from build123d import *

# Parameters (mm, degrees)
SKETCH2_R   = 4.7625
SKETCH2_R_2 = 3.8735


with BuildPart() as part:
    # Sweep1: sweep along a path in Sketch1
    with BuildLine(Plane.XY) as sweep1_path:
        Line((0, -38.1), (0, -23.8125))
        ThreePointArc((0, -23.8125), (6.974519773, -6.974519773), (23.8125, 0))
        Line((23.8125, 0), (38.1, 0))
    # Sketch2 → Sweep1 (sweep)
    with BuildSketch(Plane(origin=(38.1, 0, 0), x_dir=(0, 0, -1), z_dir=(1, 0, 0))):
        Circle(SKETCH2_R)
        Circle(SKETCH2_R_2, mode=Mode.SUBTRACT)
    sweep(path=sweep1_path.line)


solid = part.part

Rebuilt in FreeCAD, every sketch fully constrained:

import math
import FreeCAD as App
import Part
import Sketcher
Q = App.Units.Quantity

doc = App.newDocument("Part")
body = doc.addObject("PartDesign::Body", "Body")

# Sketch on YZ plane
sketch1 = body.newObject("Sketcher::SketchObject", "Sketch")
sketch1.AttachmentSupport = (doc.getObject("YZ_Plane"), [""])
sketch1.MapMode = "FlatFace"
sketch1.AttachmentOffset = App.Placement(App.Vector(0, 0, 1.5 * 25.4), App.Rotation())
sketch1.addGeometry(Part.Circle(App.Vector(0, 0, 0), App.Vector(0, 0, 1), 4.8), False)
sketch1.addGeometry(Part.Circle(App.Vector(0, 0, 0), App.Vector(0, 0, 1), 3.9), False)
sketch1.addConstraint(Sketcher.Constraint("Coincident", 0, 3, -1, 1))
sketch1.addConstraint(Sketcher.Constraint("Coincident", 1, 3, -1, 1))
sketch1.addConstraint(Sketcher.Constraint("Diameter", 0, Q("0.375 in")))
sketch1.addConstraint(Sketcher.Constraint("Diameter", 1, Q("0.305 in")))

# Sketch on XY plane
sketch2 = body.newObject("Sketcher::SketchObject", "Sketch001")
sketch2.AttachmentSupport = (doc.getObject("XY_Plane"), [""])
sketch2.MapMode = "FlatFace"
sketch2.addGeometry(Part.LineSegment(App.Vector(0, -38, 0), App.Vector(0, -24, 0)), False)
sketch2.addGeometry(Part.ArcOfCircle(Part.Circle(App.Vector(24, -24, 0), App.Vector(0, 0, 1), 24), math.radians(90), math.radians(180)), False)
sketch2.addGeometry(Part.LineSegment(App.Vector(24, 0, 0), App.Vector(38, 0, 0)), False)
sketch2.addConstraint(Sketcher.Constraint("Tangent", 0, 2, 1, 2))
sketch2.addConstraint(Sketcher.Constraint("Tangent", 1, 1, 2, 1))
sketch2.addConstraint(Sketcher.Constraint("Vertical", 0))
sketch2.addConstraint(Sketcher.Constraint("Horizontal", 2))
sketch2.addConstraint(Sketcher.Constraint("PointOnObject", 0, 1, -2))
sketch2.addConstraint(Sketcher.Constraint("PointOnObject", 1, 1, -1))
sketch2.addConstraint(Sketcher.Constraint("Equal", 2, 0))
sketch2.addConstraint(Sketcher.Constraint("Radius", 1, Q("0.9375 in")))
sketch2.addConstraint(Sketcher.Constraint("DistanceY", 0, 1, -1, 1, Q("1.5 in")))
doc.recompute()

additivepipe = body.newObject("PartDesign::AdditivePipe", "AdditivePipe")
additivepipe.Profile = sketch1
additivepipe.Spine = (sketch2, ["Edge1", "Edge2", "Edge3"])

doc.recompute()
